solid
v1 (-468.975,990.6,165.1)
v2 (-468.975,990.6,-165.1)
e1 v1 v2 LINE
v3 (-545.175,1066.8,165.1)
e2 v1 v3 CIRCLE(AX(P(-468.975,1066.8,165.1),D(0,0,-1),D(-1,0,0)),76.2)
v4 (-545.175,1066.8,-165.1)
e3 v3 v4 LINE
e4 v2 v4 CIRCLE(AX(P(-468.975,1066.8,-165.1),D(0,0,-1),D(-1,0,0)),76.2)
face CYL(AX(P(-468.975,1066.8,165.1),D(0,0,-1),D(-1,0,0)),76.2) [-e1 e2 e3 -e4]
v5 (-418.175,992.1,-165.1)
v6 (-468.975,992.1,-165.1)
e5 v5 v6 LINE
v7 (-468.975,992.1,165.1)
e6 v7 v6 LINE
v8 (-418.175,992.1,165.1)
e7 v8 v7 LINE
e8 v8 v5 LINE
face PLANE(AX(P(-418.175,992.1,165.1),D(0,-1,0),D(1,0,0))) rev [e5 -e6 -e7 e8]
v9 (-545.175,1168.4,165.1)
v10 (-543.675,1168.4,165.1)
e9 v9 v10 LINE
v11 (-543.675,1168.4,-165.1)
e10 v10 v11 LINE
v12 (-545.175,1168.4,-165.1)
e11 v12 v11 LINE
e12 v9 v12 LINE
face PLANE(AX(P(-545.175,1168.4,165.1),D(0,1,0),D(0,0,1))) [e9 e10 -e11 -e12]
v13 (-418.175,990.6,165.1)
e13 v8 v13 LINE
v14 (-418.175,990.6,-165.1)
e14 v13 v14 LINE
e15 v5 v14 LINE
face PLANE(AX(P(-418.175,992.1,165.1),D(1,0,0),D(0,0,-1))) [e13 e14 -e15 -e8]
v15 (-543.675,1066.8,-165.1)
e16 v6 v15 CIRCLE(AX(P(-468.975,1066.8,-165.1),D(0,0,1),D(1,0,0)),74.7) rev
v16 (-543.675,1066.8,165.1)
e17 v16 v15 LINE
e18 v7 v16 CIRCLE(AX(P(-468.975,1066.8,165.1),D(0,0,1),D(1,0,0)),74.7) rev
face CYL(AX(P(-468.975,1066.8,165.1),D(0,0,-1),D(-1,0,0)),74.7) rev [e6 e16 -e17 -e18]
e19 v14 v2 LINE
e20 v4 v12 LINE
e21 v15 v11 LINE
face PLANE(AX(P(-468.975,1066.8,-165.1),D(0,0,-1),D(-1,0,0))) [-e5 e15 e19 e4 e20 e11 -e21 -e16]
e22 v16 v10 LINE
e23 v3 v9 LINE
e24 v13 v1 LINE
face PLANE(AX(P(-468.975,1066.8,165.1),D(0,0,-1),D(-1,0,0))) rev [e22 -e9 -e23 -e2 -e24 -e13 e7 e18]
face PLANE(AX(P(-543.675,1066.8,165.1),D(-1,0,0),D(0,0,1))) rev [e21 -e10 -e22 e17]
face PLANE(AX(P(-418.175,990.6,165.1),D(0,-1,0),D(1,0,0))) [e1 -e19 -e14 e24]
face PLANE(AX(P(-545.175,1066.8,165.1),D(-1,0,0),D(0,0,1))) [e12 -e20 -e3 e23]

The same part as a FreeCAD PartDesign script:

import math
import FreeCAD as App
import Part
import Sketcher
Q = App.Units.Quantity

doc = App.newDocument("Part")
body = doc.addObject("PartDesign::Body", "Body")

sketch1 = body.newObject("Sketcher::SketchObject", "Sketch")
sketch1.AttachmentSupport = (doc.getObject("XY_Plane"), [""])
sketch1.MapMode = "FlatFace"
sketch1.addGeometry([
    Part.LineSegment(App.Vector(-469, 990.6, 0), App.Vector(-418.2, 990.6, 0)),
    Part.LineSegment(App.Vector(-418.2, 990.6, 0), App.Vector(-418.2, 992.1, 0)),
    Part.LineSegment(App.Vector(-418.2, 992.1, 0), App.Vector(-469, 992.1, 0)),
    Part.ArcOfCircle(Part.Circle(App.Vector(-469, 1066.8, 0), App.Vector(0, 0, 1), 74.7), math.radians(180), math.radians(270)),
    Part.LineSegment(App.Vector(-543.7, 1066.8, 0), App.Vector(-543.7, 1168.4, 0)),
    Part.LineSegment(App.Vector(-543.7, 1168.4, 0), App.Vector(-545.2, 1168.4, 0)),
    Part.LineSegment(App.Vector(-545.2, 1168.4, 0), App.Vector(-545.2, 1066.8, 0)),
    Part.ArcOfCircle(Part.Circle(App.Vector(-469, 1066.8, 0), App.Vector(0, 0, 1), 76.2), math.radians(-180), math.radians(-90)),
], False)
sketch1.addConstraint([
    Sketcher.Constraint("Coincident", 0, 2, 1, 1),
    Sketcher.Constraint("Coincident", 1, 2, 2, 1),
    Sketcher.Constraint("Tangent", 2, 2, 3, 2),
    Sketcher.Constraint("Tangent", 3, 1, 4, 1),
    Sketcher.Constraint("Coincident", 4, 2, 5, 1),
    Sketcher.Constraint("Coincident", 5, 2, 6, 1),
    Sketcher.Constraint("Tangent", 6, 2, 7, 1),
    Sketcher.Constraint("Tangent", 7, 2, 0, 1),
    Sketcher.Constraint("Horizontal", 0),
    Sketcher.Constraint("Vertical", 1),
    Sketcher.Constraint("Horizontal", 2),
    Sketcher.Constraint("Vertical", 4),
    Sketcher.Constraint("Horizontal", 5),
    Sketcher.Constraint("Vertical", 6),
    Sketcher.Constraint("Coincident", 7, 3, 3, 3),
    Sketcher.Constraint("Radius", 7, Q("3 in")),
    Sketcher.Constraint("DistanceX", 0, 1, 0, 2, Q("2 in")),
    Sketcher.Constraint("DistanceY", 4, 1, 4, 2, Q("4 in")),
    Sketcher.Constraint("DistanceY", -1, 1, 3, 3, Q("42 in")),
    Sketcher.Constraint("Radius", 3, Q("74.7 mm")),
    Sketcher.Constraint("DistanceX", 3, 3, -1, 1, Q("468.975 mm")),
])
pad1 = body.newObject("PartDesign::Pad", "Pad")
pad1.Profile = sketch1
pad1.Length = Q("13 in")
pad1.Midplane = True

doc.recompute()
